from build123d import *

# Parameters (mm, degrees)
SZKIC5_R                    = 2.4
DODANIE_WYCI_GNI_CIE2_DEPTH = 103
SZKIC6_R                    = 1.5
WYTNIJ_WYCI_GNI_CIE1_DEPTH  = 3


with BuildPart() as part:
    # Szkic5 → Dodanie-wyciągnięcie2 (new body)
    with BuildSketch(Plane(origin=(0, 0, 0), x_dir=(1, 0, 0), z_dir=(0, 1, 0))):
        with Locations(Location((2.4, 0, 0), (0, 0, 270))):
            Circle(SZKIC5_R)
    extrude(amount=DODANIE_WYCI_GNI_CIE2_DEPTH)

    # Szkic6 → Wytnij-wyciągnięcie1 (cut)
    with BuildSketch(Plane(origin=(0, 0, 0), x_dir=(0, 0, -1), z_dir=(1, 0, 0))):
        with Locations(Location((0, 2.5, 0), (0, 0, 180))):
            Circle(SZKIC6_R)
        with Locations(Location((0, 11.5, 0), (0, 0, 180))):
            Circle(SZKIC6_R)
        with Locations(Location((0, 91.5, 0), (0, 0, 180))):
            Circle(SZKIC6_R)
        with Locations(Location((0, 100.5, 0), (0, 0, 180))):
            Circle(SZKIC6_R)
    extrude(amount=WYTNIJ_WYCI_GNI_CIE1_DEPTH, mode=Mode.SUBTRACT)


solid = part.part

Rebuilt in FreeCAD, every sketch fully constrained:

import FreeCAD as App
import Part
import Sketcher

V = App.Vector
Q = App.Units.Quantity

doc = App.newDocument("Part")
body = doc.addObject("PartDesign::Body", "Body")

# Sketch on XZ plane
sketch1 = doc.addObject("Sketcher::SketchObject", "Sketch")
body.addObject(sketch1)
sketch1.AttachmentSupport = (doc.XZ_Plane, [""])
sketch1.MapMode = "FlatFace"
sketch1.addGeometry(Part.Circle(V(2.4, 0, 0), V(0, 0, 1), 2.4), False)
sketch1.addConstraint([
    Sketcher.Constraint("PointOnObject", 0, 3, -1),
    Sketcher.Constraint("Diameter", 0, Q("4.8 mm")),
    Sketcher.Constraint("DistanceX", -1, 1, 0, 3, Q("2.4 mm")),
])
pad1 = doc.addObject("PartDesign::Pad", "Pad")
body.addObject(pad1)
pad1.Profile = sketch1
pad1.Length = 103
pad1.Reversed = True

# Sketch on YZ plane
sketch2 = doc.addObject("Sketcher::SketchObject", "Sketch001")
body.addObject(sketch2)
sketch2.AttachmentSupport = (doc.YZ_Plane, [""])
sketch2.MapMode = "FlatFace"
sketch2.addGeometry([
    Part.Circle(V(2.5, 0, 0), V(0, 0, 1), 1.5),
    Part.Circle(V(11.5, 0, 0), V(0, 0, 1), 1.5),
    Part.Circle(V(91.5, 0, 0), V(0, 0, 1), 1.5),
    Part.Circle(V(100.5, 0, 0), V(0, 0, 1), 1.5),
], False)
sketch2.addConstraint([
    Sketcher.Constraint("Equal", 0, 1),
    Sketcher.Constraint("Equal", 1, 2),
    Sketcher.Constraint("Equal", 2, 3),
    Sketcher.Constraint("PointOnObject", 0, 3, -1),
    Sketcher.Constraint("PointOnObject", 1, 3, -1),
    Sketcher.Constraint("PointOnObject", 2, 3, -1),
    Sketcher.Constraint("PointOnObject", 3, 3, -1),
    Sketcher.Constraint("Diameter", 0, Q("3 mm")),
    Sketcher.Constraint("DistanceX", 0, 3, 1, 3, Q("9 mm")),
    Sketcher.Constraint("DistanceX", 1, 3, 2, 3, Q("80 mm")),
    Sketcher.Constraint("DistanceX", 2, 3, 3, 3, Q("9 mm")),
    Sketcher.Constraint("DistanceX", -1, 1, 0, 3, Q("2.5 mm")),
])
pocket1 = doc.addObject("PartDesign::Pocket", "Pocket")
body.addObject(pocket1)
pocket1.Profile = sketch2
pocket1.Length = 3
pocket1.Reversed = True

doc.recompute()
